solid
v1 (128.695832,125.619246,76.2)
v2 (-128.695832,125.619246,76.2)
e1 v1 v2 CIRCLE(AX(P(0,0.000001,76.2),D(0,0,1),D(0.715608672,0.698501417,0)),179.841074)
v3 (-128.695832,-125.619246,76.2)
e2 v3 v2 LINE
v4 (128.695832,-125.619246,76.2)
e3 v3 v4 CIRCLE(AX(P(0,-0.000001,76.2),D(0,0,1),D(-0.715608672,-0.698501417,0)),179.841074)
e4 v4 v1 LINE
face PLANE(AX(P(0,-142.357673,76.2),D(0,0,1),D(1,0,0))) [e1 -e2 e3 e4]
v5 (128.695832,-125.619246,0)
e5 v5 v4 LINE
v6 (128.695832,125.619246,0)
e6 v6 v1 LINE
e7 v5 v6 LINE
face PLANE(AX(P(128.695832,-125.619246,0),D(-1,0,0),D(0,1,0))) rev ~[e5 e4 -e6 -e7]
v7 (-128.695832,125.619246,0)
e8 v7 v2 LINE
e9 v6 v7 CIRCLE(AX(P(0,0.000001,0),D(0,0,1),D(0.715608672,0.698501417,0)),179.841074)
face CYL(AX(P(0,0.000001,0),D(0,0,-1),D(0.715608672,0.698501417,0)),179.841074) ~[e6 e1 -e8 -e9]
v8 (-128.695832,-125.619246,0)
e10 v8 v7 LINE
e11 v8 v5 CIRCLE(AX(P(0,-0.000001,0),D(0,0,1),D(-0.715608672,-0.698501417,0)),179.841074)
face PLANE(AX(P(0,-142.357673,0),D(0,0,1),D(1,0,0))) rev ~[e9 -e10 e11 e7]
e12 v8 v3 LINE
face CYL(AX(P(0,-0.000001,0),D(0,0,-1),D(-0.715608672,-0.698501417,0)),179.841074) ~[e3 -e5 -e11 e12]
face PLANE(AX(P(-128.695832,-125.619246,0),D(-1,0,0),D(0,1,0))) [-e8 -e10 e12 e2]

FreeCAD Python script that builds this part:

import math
import FreeCAD as App
import Part
import Sketcher

V = App.Vector
Q = App.Units.Quantity

doc = App.newDocument("Part")
body = doc.addObject("PartDesign::Body", "Body")

sketch1 = doc.addObject("Sketcher::SketchObject", "Sketch")
body.addObject(sketch1)
sketch1.AttachmentSupport = (doc.XY_Plane, [""])
sketch1.MapMode = "FlatFace"
sketch1.addGeometry([
    Part.ArcOfCircle(Part.Circle(V(0, 0, 0), V(0, 0, 1), 180), math.radians(-136), math.radians(-44)),
    Part.LineSegment(V(129, -126, 0), V(129, 126, 0)),
    Part.ArcOfCircle(Part.Circle(V(0, 0, 0), V(0, 0, 1), 180), math.radians(44), math.radians(136)),
    Part.LineSegment(V(-129, 126, 0), V(-129, -126, 0)),
], False)
sketch1.addConstraint([
    Sketcher.Constraint("Coincident", 0, 2, 1, 1),
    Sketcher.Constraint("Coincident", 1, 2, 2, 1),
    Sketcher.Constraint("Coincident", 2, 2, 3, 1),
    Sketcher.Constraint("Coincident", 3, 2, 0, 1),
    Sketcher.Constraint("Vertical", 1),
    Sketcher.Constraint("Vertical", 3),
    Sketcher.Constraint("Coincident", 0, 3, -1, 1),
    Sketcher.Constraint("Coincident", 2, 3, -1, 1),
    Sketcher.Constraint("Equal", 0, 2),
    Sketcher.Constraint("Horizontal", 1, 2, 2, 2),
    Sketcher.Constraint("Radius", 0, Q("179.841074 mm")),
    Sketcher.Constraint("DistanceY", 1, 1, 1, 2, Q("251.238492 mm")),
])
pad1 = doc.addObject("PartDesign::Pad", "Pad")
body.addObject(pad1)
pad1.Profile = sketch1
pad1.Length = Q("3 in")

doc.recompute()
